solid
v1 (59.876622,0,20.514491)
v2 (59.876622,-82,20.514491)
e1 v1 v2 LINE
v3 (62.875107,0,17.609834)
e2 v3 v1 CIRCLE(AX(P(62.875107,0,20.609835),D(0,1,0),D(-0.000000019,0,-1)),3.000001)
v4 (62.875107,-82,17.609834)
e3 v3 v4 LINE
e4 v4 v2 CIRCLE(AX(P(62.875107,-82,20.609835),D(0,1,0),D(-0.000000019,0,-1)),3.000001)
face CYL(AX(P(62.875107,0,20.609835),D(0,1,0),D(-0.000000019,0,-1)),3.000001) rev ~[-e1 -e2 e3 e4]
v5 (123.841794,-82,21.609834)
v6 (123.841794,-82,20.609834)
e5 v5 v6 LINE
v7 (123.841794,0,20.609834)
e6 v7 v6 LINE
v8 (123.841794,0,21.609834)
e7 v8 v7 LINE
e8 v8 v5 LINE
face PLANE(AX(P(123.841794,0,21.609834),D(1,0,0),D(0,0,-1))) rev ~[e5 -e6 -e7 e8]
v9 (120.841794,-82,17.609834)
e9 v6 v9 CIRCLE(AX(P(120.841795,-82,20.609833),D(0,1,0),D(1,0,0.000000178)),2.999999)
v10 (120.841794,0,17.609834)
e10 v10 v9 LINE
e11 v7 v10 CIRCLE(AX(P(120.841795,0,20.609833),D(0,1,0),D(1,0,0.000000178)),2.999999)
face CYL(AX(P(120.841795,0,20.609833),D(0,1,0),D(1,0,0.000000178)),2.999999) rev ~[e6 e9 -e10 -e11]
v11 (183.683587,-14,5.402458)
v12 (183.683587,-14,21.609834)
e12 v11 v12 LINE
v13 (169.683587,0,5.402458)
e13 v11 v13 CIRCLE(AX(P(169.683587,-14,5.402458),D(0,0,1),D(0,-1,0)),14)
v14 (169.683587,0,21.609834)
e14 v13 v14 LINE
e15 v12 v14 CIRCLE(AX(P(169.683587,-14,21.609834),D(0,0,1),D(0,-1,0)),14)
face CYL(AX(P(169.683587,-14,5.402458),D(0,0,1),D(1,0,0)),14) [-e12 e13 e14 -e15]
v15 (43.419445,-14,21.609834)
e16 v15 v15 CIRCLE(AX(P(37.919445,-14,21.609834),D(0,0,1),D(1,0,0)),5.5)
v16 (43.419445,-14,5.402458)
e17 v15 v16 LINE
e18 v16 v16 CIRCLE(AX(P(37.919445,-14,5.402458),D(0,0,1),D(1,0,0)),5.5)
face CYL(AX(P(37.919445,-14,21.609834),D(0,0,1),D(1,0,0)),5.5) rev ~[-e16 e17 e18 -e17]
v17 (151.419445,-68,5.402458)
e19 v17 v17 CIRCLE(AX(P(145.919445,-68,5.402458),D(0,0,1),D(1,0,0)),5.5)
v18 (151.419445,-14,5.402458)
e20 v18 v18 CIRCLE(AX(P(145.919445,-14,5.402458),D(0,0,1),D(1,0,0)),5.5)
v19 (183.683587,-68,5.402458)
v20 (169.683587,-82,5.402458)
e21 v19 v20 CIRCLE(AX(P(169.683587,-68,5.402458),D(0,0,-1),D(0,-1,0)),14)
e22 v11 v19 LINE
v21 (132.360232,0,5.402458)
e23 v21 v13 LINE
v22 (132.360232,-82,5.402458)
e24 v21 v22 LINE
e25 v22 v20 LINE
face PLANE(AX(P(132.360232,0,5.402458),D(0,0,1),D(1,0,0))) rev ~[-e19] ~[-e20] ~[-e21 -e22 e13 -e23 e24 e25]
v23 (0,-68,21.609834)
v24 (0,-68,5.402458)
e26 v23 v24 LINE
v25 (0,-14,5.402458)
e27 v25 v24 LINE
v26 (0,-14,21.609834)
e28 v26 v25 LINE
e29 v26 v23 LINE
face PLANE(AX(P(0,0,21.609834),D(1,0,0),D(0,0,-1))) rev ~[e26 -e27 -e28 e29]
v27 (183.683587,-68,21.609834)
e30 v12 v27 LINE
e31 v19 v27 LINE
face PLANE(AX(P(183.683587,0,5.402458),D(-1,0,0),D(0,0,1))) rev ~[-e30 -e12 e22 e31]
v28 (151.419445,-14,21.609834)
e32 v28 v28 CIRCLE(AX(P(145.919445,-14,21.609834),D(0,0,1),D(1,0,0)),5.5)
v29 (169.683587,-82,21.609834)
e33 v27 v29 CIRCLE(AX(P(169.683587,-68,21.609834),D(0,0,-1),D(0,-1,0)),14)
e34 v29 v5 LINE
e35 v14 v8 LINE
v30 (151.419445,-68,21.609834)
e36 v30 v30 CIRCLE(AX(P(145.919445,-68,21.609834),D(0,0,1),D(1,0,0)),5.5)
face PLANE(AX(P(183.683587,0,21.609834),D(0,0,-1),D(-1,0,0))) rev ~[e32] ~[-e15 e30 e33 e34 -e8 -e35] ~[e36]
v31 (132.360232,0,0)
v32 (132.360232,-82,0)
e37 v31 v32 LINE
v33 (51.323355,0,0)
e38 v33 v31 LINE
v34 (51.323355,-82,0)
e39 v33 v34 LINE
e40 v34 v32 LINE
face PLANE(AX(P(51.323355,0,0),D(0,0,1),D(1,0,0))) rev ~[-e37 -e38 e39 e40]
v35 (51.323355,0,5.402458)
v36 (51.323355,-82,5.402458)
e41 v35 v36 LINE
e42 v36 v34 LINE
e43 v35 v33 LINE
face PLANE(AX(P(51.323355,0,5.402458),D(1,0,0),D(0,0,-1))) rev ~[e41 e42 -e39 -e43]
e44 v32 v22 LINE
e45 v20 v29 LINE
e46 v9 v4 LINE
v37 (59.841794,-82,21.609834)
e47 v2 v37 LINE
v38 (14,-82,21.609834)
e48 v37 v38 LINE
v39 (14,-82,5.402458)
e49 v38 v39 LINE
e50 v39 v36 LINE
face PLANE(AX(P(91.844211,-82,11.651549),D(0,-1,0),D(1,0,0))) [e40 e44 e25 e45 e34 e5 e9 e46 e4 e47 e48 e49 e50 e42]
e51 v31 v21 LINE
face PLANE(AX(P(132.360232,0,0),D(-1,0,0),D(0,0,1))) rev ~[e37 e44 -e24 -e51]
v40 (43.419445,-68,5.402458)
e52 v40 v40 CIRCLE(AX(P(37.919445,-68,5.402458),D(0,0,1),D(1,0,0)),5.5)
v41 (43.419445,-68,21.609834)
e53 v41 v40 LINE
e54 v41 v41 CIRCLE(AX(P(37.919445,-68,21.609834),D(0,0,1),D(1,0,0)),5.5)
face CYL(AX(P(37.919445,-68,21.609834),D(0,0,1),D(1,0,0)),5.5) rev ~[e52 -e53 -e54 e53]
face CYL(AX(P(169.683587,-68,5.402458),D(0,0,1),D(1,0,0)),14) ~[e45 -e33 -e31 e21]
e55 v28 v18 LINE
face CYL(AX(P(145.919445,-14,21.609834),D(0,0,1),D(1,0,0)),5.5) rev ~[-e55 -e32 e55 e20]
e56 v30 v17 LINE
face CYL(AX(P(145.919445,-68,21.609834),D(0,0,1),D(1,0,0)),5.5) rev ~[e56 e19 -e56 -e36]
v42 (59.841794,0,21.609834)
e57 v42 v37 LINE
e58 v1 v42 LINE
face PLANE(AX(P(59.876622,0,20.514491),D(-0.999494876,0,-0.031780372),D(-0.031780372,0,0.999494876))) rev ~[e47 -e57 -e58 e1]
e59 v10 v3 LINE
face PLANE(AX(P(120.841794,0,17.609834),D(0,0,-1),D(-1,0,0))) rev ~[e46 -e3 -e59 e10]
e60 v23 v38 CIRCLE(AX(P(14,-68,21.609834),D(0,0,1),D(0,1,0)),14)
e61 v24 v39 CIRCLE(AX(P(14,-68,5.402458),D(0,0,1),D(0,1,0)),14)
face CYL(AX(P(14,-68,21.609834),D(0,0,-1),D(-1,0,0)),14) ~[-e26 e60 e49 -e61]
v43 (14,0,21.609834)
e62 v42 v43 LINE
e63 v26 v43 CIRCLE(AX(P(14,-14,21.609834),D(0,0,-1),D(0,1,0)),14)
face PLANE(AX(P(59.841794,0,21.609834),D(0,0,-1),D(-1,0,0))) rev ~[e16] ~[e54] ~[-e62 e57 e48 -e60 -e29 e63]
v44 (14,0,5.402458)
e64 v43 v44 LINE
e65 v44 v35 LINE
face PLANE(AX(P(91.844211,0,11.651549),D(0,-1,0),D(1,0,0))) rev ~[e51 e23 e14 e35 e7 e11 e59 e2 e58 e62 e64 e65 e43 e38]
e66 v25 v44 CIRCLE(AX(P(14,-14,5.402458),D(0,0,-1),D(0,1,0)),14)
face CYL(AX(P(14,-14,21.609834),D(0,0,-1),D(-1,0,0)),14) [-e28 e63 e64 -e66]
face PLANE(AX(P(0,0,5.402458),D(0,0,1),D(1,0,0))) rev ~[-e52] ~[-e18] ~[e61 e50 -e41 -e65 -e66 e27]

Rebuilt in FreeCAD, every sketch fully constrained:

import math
import FreeCAD as App
import Part
import Sketcher


def edges_at(feature, points):
    """Names of the edges that pass closest to the given points."""
    edges = feature.Shape.Edges
    near = lambda p: min(range(len(edges)), key=lambda i: edges[i].distToShape(Part.Vertex(*p))[0])
    return sorted({f"Edge{near(p) + 1}" for p in points})

doc = App.newDocument("Part")
params = doc.addObject("Spreadsheet::Sheet", "Params")
for row, (alias, value) in enumerate([
    ("sketch1_radius", "2.999999 mm"),
    ("sketch1_height", "1 mm"),
    ("pad1_length", "82 mm"),
    ("fillet_radius", "14 mm"),
    ("sketch2_diameter", "11 mm"),
], start=1):
    params.set(f"A{row}", alias)
    params.set(f"B{row}", "=" + value)
    params.setAlias(f"B{row}", alias)

body = doc.addObject("PartDesign::Body", "Body")

# Sketch on XZ plane
sketch1 = body.newObject("Sketcher::SketchObject", "Sketch")
sketch1.AttachmentSupport = (doc.getObject("XZ_Plane"), [""])
sketch1.MapMode = "FlatFace"
sketch1.addGeometry([
    Part.LineSegment(App.Vector(0, 21.6, 0), App.Vector(0, 5.4, 0)),  # 0
    Part.LineSegment(App.Vector(0, 5.4, 0), App.Vector(51.3, 5.4, 0)),  # 1
    Part.LineSegment(App.Vector(51.3, 5.4, 0), App.Vector(51.3, 0, 0)),  # 2
    Part.LineSegment(App.Vector(51.3, 0, 0), App.Vector(132.4, 0, 0)),  # 3
    Part.LineSegment(App.Vector(132.4, 0, 0), App.Vector(132.4, 5.4, 0)),  # 4
    Part.LineSegment(App.Vector(132.4, 5.4, 0), App.Vector(183.7, 5.4, 0)),  # 5
    Part.LineSegment(App.Vector(183.7, 5.4, 0), App.Vector(183.7, 21.6, 0)),  # 6
    Part.LineSegment(App.Vector(183.7, 21.6, 0), App.Vector(123.8, 21.6, 0)),  # 7
    Part.LineSegment(App.Vector(123.8, 21.6, 0), App.Vector(123.8, 20.6, 0)),  # 8
    Part.ArcOfCircle(Part.Circle(App.Vector(120.8, 20.6, 0), App.Vector(0, 0, 1), 3), math.radians(-90), math.radians(0)),  # 9
    Part.LineSegment(App.Vector(120.8, 17.6, 0), App.Vector(62.9, 17.6, 0)),  # 10
    Part.ArcOfCircle(Part.Circle(App.Vector(62.9, 20.6, 0), App.Vector(0, 0, 1), 3), math.radians(-178), math.radians(-90)),  # 11
    Part.LineSegment(App.Vector(59.9, 20.5, 0), App.Vector(59.8, 21.6, 0)),  # 12
    Part.LineSegment(App.Vector(59.8, 21.6, 0), App.Vector(0, 21.6, 0)),  # 13
], False)
sketch1.addConstraint([
    Sketcher.Constraint("Coincident", 0, 2, 1, 1),
    Sketcher.Constraint("Coincident", 1, 2, 2, 1),
    Sketcher.Constraint("Coincident", 2, 2, 3, 1),
    Sketcher.Constraint("Coincident", 3, 2, 4, 1),
    Sketcher.Constraint("Coincident", 4, 2, 5, 1),
    Sketcher.Constraint("Coincident", 5, 2, 6, 1),
    Sketcher.Constraint("Coincident", 6, 2, 7, 1),
    Sketcher.Constraint("Coincident", 7, 2, 8, 1),
    Sketcher.Constraint("Tangent", 8, 2, 9, 2),
    Sketcher.Constraint("Tangent", 9, 1, 10, 1),
    Sketcher.Constraint("Tangent", 10, 2, 11, 2),
    Sketcher.Constraint("Tangent", 11, 1, 12, 1),
    Sketcher.Constraint("Coincident", 12, 2, 13, 1),
    Sketcher.Constraint("Coincident", 13, 2, 0, 1),
    Sketcher.Constraint("Vertical", 0),
    Sketcher.Constraint("Horizontal", 1),
    Sketcher.Constraint("Vertical", 2),
    Sketcher.Constraint("Horizontal", 3),
    Sketcher.Constraint("Vertical", 4),
    Sketcher.Constraint("Horizontal", 5),
    Sketcher.Constraint("Vertical", 6),
    Sketcher.Constraint("Horizontal", 7),
    Sketcher.Constraint("Vertical", 8),
    Sketcher.Constraint("Horizontal", 10),
    Sketcher.Constraint("Horizontal", 13),
    Sketcher.Constraint("Equal", 9, 11),
    Sketcher.Constraint("PointOnObject", 0, 2, -2),
    Sketcher.Constraint("PointOnObject", 2, 2, -1),
    Sketcher.Constraint("Horizontal", 1, 2, 4, 2),
    Sketcher.Constraint("Horizontal", 7, 2, 12, 2),
    Sketcher.Constraint("Equal", 1, 5),
    Sketcher.Constraint("Equal", 7, 13),
    Sketcher.Constraint("Radius", 9, 2.999999),
    Sketcher.Constraint("DistanceY", 8, 2, 8, 1, 1.0),
    Sketcher.Constraint("DistanceY", 2, 2, 2, 1, 5.402458),
    Sketcher.Constraint("DistanceX", 1, 1, 1, 2, 51.323355),
    Sketcher.Constraint("DistanceX", 3, 1, 3, 2, 81.036877),
    Sketcher.Constraint("DistanceX", 7, 2, 7, 1, 59.841793),
    Sketcher.Constraint("DistanceX", 10, 2, 10, 1, 57.966687),
    Sketcher.Constraint("DistanceY", 0, 2, 0, 1, 16.207376),
])
sketch1.setExpression("Constraints[32]", "Params.sketch1_radius")
sketch1.setExpression("Constraints[33]", "Params.sketch1_height")
pad1 = body.newObject("PartDesign::Pad", "Pad")
pad1.Profile = sketch1
pad1.setExpression("Length", "Params.pad1_length")
doc.recompute()

fillet = body.newObject("PartDesign::Fillet", "Fillet")
fillet.Base = (pad1, edges_at(pad1, [
    (0, -82, 13.506),
    (183.684, -82, 13.506),
    (183.684, 0, 13.506),
    (0, 0, 13.506),
]))
fillet.setExpression("Radius", "Params.fillet_radius")

# Sketch on XY plane
sketch2 = body.newObject("Sketcher::SketchObject", "Sketch001")
sketch2.AttachmentSupport = (doc.getObject("XY_Plane"), [""])
sketch2.MapMode = "FlatFace"
sketch2.AttachmentOffset = App.Placement(App.Vector(0, 0, 21.609834), App.Rotation())
sketch2.addGeometry([
    Part.Circle(App.Vector(38, -14, 0), App.Vector(0, 0, 1), 6),
    Part.Circle(App.Vector(146, -14, 0), App.Vector(0, 0, 1), 6),
    Part.Circle(App.Vector(146, -68, 0), App.Vector(0, 0, 1), 6),
    Part.Circle(App.Vector(38, -68, 0), App.Vector(0, 0, 1), 6),
], False)
sketch2.addConstraint([
    Sketcher.Constraint("Equal", 0, 1),
    Sketcher.Constraint("Equal", 1, 2),
    Sketcher.Constraint("Equal", 2, 3),
    Sketcher.Constraint("Horizontal", 0, 3, 1, 3),
    Sketcher.Constraint("Horizontal", 2, 3, 3, 3),
    Sketcher.Constraint("Vertical", 1, 3, 2, 3),
    Sketcher.Constraint("Vertical", 0, 3, 3, 3),
    Sketcher.Constraint("Diameter", 0, 11.0),
    Sketcher.Constraint("DistanceY", 0, 3, -1, 1, 14.0),
    Sketcher.Constraint("DistanceY", 2, 3, -1, 1, 68.0),
    Sketcher.Constraint("DistanceX", 0, 3, 1, 3, 108.0),
    Sketcher.Constraint("DistanceX", -1, 1, 0, 3, 37.919445),
])
sketch2.setExpression("Constraints[7]", "Params.sketch2_diameter")
pocket1 = body.newObject("PartDesign::Pocket", "Pocket")
pocket1.Profile = sketch2
pocket1.Type = "ThroughAll"

doc.recompute()
